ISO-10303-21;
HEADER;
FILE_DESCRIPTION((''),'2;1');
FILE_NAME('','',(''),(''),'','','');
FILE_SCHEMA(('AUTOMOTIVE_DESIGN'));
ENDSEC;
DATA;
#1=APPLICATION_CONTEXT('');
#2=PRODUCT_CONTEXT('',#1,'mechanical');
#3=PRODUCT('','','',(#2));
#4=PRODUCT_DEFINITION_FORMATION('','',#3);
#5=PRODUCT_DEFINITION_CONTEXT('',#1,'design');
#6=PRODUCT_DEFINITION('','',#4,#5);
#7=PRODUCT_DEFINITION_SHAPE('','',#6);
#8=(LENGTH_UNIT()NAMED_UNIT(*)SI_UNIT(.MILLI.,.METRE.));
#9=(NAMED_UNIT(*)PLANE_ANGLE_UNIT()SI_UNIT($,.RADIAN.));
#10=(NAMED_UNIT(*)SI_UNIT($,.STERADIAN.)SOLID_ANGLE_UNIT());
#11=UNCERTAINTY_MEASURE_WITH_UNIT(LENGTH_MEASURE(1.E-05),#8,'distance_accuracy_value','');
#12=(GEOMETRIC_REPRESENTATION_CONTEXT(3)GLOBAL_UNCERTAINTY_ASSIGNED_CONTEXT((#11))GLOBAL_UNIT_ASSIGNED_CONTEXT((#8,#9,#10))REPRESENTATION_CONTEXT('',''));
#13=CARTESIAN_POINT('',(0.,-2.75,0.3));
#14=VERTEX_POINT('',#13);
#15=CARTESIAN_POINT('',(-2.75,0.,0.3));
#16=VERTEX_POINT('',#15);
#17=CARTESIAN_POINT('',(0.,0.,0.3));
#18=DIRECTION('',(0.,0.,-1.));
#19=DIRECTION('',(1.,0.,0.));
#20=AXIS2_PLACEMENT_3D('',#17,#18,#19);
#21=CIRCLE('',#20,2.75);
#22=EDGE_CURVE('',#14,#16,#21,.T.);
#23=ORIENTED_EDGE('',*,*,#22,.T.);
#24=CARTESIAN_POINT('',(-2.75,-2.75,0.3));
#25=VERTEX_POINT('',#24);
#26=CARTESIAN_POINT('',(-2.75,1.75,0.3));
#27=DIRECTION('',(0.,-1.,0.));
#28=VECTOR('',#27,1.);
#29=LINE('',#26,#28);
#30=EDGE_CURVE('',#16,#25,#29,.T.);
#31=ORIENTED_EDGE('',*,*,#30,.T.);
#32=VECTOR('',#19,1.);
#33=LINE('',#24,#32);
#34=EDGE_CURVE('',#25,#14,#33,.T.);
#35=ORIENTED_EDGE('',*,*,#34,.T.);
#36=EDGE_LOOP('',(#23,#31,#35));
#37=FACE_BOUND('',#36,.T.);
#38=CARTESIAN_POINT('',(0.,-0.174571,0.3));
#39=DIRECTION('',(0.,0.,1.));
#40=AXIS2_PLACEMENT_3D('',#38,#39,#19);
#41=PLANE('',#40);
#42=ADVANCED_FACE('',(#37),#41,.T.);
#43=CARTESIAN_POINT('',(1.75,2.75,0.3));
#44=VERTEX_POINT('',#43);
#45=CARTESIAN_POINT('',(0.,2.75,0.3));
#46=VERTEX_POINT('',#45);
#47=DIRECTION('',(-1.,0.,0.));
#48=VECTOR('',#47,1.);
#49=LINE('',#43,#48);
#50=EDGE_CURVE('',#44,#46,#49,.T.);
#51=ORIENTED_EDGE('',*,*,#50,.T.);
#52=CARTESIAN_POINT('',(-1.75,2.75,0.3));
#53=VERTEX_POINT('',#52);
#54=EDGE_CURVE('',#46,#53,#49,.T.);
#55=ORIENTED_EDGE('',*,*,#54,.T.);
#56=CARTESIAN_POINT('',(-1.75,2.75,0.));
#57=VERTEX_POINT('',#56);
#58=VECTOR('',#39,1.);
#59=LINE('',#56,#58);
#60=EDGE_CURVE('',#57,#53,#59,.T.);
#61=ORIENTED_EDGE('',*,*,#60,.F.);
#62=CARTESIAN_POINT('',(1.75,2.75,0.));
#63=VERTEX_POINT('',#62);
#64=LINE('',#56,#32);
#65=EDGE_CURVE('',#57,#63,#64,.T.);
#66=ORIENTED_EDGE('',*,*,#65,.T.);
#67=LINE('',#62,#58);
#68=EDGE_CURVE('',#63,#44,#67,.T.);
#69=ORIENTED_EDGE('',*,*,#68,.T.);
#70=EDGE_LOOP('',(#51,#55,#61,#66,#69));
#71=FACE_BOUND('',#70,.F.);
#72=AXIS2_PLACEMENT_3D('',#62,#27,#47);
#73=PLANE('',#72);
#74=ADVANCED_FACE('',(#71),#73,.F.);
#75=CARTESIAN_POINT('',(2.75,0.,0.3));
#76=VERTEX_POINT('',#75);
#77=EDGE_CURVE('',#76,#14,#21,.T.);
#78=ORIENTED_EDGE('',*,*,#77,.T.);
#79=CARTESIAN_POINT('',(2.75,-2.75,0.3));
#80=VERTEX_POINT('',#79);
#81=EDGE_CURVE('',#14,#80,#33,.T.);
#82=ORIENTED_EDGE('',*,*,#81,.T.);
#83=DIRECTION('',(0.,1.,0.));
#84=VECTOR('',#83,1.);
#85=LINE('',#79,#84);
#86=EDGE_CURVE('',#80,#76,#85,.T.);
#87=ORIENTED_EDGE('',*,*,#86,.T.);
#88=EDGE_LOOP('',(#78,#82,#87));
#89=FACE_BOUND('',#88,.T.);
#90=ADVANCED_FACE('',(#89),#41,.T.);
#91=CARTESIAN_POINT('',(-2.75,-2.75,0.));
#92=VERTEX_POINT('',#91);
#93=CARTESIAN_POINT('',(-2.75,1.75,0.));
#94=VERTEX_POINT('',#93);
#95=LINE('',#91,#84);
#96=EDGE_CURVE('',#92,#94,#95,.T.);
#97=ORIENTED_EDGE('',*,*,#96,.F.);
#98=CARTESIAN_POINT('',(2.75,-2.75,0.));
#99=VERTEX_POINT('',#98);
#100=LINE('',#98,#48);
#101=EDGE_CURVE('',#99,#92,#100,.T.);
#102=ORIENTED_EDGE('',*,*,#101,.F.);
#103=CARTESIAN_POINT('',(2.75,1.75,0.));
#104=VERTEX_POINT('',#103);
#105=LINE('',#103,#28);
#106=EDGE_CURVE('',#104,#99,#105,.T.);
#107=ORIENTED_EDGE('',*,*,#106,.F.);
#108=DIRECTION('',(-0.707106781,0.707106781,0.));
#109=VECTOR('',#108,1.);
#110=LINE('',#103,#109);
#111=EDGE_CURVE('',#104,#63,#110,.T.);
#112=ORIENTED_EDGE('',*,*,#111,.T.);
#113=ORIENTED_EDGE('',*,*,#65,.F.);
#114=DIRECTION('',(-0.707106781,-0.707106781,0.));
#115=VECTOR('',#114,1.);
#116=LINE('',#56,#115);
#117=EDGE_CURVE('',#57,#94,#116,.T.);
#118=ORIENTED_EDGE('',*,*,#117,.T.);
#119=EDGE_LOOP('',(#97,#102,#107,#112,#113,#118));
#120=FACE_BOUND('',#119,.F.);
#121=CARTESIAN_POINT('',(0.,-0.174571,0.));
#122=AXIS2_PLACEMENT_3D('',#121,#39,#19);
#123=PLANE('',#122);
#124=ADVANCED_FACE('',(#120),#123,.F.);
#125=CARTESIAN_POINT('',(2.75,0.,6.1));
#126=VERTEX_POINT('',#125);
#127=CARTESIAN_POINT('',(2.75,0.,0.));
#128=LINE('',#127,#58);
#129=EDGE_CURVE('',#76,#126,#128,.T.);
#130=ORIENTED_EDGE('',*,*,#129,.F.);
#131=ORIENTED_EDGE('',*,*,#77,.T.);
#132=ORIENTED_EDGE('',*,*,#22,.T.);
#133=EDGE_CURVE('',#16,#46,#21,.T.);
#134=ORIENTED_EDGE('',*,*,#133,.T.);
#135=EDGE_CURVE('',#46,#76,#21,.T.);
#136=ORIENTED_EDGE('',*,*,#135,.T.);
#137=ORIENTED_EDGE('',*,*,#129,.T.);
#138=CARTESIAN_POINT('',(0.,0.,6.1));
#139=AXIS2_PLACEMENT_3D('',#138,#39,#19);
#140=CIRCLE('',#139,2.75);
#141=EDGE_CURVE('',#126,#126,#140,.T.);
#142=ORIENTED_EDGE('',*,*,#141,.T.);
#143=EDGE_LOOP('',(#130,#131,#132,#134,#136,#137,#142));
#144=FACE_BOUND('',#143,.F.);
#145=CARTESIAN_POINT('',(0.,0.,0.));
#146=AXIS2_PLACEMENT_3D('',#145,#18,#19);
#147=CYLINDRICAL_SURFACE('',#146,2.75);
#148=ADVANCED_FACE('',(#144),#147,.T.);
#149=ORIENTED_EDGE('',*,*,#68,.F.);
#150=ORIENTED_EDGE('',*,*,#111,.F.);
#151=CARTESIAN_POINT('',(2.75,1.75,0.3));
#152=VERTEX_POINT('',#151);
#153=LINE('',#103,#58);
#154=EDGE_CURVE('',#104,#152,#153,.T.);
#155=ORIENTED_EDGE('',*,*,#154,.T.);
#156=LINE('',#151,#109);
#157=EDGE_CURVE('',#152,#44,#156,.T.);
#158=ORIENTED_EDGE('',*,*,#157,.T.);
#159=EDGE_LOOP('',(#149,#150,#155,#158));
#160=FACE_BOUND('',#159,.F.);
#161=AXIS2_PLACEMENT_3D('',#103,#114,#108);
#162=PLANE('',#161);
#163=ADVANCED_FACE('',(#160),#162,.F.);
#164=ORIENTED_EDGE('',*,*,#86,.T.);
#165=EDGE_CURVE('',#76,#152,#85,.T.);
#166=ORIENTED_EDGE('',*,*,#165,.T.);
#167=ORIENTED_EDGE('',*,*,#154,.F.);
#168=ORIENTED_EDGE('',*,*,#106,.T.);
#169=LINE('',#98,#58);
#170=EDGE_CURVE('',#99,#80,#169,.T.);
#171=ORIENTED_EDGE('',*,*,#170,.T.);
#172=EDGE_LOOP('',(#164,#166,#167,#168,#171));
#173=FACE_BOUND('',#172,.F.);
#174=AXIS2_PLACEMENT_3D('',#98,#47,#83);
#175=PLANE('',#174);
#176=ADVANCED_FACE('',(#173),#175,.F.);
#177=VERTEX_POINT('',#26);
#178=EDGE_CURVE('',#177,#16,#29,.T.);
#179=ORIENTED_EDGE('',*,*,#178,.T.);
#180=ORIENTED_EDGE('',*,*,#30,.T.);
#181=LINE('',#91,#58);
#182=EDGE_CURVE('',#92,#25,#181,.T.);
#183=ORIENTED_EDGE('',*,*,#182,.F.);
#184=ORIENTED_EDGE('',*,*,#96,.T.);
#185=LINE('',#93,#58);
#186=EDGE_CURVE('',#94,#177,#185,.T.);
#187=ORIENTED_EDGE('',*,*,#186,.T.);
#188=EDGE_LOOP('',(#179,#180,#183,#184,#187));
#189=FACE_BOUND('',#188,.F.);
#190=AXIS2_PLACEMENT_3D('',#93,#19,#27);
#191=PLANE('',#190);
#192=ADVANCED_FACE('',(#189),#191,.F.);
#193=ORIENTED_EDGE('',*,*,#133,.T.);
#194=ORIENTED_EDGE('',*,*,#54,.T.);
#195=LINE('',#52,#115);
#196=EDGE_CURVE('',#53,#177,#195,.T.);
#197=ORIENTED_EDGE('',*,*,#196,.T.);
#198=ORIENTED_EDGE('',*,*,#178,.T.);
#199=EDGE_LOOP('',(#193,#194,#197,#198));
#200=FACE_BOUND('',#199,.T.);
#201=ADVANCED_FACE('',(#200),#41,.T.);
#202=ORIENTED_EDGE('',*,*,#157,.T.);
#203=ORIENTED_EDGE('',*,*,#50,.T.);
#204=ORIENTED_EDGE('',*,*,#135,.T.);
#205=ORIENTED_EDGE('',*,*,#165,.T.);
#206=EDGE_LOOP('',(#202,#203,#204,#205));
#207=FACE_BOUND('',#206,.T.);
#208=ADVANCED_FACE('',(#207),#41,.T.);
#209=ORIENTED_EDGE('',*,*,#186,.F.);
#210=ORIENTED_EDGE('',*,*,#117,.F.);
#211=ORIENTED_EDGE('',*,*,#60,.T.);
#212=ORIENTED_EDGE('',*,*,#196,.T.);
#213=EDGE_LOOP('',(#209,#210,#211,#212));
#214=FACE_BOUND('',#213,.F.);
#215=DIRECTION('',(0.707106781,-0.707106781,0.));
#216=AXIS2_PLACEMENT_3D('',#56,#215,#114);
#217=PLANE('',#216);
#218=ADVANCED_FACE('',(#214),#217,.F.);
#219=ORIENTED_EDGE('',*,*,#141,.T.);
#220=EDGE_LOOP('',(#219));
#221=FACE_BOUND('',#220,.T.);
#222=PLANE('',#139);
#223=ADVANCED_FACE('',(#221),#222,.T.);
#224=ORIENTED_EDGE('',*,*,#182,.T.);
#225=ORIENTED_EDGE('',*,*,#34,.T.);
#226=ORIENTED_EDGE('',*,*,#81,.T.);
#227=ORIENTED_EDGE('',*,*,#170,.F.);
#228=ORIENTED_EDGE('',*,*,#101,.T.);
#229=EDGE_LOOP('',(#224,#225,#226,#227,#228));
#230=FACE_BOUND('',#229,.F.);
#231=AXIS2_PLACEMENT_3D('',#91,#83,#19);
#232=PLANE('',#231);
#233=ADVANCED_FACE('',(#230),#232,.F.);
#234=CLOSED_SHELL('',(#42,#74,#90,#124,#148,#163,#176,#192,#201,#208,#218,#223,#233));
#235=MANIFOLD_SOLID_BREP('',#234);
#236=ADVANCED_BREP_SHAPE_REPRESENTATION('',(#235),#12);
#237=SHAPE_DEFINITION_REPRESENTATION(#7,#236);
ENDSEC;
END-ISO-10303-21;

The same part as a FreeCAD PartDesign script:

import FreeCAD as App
import Part
import Sketcher

V = App.Vector
Q = App.Units.Quantity

doc = App.newDocument("Part")
body = doc.addObject("PartDesign::Body", "Body")

# Sketch on XY plane
sketch1 = body.newObject("Sketcher::SketchObject", "Sketch")
sketch1.AttachmentSupport = (doc.getObject("XY_Plane"), [""])
sketch1.MapMode = "FlatFace"
sketch1.addGeometry(Part.LineSegment(V(-2.75, -2.75, 0), V(2.75, -2.75, 0)), False)
sketch1.addGeometry(Part.LineSegment(V(2.75, -2.75, 0), V(2.75, 1.75, 0)), False)
sketch1.addGeometry(Part.LineSegment(V(2.75, 1.75, 0), V(1.75, 2.75, 0)), False)
sketch1.addGeometry(Part.LineSegment(V(1.75, 2.75, 0), V(-1.75, 2.75, 0)), False)
sketch1.addGeometry(Part.LineSegment(V(-1.75, 2.75, 0), V(-2.75, 1.75, 0)), False)
sketch1.addGeometry(Part.LineSegment(V(-2.75, 1.75, 0), V(-2.75, -2.75, 0)), False)
sketch1.addConstraint(Sketcher.Constraint("Coincident", 0, 2, 1, 1))
sketch1.addConstraint(Sketcher.Constraint("Coincident", 1, 2, 2, 1))
sketch1.addConstraint(Sketcher.Constraint("Coincident", 2, 2, 3, 1))
sketch1.addConstraint(Sketcher.Constraint("Coincident", 3, 2, 4, 1))
sketch1.addConstraint(Sketcher.Constraint("Coincident", 4, 2, 5, 1))
sketch1.addConstraint(Sketcher.Constraint("Coincident", 5, 2, 0, 1))
sketch1.addConstraint(Sketcher.Constraint("Horizontal", 0))
sketch1.addConstraint(Sketcher.Constraint("Vertical", 1))
sketch1.addConstraint(Sketcher.Constraint("Horizontal", 3))
sketch1.addConstraint(Sketcher.Constraint("Vertical", 5))
sketch1.addConstraint(Sketcher.Constraint("Symmetric", 1, 2, 4, 2, -2))
sketch1.addConstraint(Sketcher.Constraint("Perpendicular", 2, 4))
sketch1.addConstraint(Sketcher.Constraint("Equal", 2, 4))
sketch1.addConstraint(Sketcher.Constraint("DistanceX", 0, 1, 0, 2, Q("5.5 mm")))
sketch1.addConstraint(Sketcher.Constraint("DistanceX", 3, 2, 3, 1, Q("3.5 mm")))
sketch1.addConstraint(Sketcher.Constraint("DistanceY", 1, 1, 1, 2, Q("4.5 mm")))
sketch1.addConstraint(Sketcher.Constraint("DistanceY", 0, 2, -1, 1, Q("2.75 mm")))
pad1 = body.newObject("PartDesign::Pad", "Pad")
pad1.Profile = sketch1
pad1.Length = 0.3

# Sketch on XY plane
sketch2 = body.newObject("Sketcher::SketchObject", "Sketch001")
sketch2.AttachmentSupport = (doc.getObject("XY_Plane"), [""])
sketch2.MapMode = "FlatFace"
sketch2.addGeometry(Part.Circle(V(0, 0, 0), V(0, 0, 1), 2.75), False)
sketch2.addConstraint(Sketcher.Constraint("Coincident", 0, 3, -1, 1))
sketch2.addConstraint(Sketcher.Constraint("Diameter", 0, Q("5.5 mm")))
pad2 = body.newObject("PartDesign::Pad", "Pad001")
pad2.Profile = sketch2
pad2.Length = 6.1

doc.recompute()
